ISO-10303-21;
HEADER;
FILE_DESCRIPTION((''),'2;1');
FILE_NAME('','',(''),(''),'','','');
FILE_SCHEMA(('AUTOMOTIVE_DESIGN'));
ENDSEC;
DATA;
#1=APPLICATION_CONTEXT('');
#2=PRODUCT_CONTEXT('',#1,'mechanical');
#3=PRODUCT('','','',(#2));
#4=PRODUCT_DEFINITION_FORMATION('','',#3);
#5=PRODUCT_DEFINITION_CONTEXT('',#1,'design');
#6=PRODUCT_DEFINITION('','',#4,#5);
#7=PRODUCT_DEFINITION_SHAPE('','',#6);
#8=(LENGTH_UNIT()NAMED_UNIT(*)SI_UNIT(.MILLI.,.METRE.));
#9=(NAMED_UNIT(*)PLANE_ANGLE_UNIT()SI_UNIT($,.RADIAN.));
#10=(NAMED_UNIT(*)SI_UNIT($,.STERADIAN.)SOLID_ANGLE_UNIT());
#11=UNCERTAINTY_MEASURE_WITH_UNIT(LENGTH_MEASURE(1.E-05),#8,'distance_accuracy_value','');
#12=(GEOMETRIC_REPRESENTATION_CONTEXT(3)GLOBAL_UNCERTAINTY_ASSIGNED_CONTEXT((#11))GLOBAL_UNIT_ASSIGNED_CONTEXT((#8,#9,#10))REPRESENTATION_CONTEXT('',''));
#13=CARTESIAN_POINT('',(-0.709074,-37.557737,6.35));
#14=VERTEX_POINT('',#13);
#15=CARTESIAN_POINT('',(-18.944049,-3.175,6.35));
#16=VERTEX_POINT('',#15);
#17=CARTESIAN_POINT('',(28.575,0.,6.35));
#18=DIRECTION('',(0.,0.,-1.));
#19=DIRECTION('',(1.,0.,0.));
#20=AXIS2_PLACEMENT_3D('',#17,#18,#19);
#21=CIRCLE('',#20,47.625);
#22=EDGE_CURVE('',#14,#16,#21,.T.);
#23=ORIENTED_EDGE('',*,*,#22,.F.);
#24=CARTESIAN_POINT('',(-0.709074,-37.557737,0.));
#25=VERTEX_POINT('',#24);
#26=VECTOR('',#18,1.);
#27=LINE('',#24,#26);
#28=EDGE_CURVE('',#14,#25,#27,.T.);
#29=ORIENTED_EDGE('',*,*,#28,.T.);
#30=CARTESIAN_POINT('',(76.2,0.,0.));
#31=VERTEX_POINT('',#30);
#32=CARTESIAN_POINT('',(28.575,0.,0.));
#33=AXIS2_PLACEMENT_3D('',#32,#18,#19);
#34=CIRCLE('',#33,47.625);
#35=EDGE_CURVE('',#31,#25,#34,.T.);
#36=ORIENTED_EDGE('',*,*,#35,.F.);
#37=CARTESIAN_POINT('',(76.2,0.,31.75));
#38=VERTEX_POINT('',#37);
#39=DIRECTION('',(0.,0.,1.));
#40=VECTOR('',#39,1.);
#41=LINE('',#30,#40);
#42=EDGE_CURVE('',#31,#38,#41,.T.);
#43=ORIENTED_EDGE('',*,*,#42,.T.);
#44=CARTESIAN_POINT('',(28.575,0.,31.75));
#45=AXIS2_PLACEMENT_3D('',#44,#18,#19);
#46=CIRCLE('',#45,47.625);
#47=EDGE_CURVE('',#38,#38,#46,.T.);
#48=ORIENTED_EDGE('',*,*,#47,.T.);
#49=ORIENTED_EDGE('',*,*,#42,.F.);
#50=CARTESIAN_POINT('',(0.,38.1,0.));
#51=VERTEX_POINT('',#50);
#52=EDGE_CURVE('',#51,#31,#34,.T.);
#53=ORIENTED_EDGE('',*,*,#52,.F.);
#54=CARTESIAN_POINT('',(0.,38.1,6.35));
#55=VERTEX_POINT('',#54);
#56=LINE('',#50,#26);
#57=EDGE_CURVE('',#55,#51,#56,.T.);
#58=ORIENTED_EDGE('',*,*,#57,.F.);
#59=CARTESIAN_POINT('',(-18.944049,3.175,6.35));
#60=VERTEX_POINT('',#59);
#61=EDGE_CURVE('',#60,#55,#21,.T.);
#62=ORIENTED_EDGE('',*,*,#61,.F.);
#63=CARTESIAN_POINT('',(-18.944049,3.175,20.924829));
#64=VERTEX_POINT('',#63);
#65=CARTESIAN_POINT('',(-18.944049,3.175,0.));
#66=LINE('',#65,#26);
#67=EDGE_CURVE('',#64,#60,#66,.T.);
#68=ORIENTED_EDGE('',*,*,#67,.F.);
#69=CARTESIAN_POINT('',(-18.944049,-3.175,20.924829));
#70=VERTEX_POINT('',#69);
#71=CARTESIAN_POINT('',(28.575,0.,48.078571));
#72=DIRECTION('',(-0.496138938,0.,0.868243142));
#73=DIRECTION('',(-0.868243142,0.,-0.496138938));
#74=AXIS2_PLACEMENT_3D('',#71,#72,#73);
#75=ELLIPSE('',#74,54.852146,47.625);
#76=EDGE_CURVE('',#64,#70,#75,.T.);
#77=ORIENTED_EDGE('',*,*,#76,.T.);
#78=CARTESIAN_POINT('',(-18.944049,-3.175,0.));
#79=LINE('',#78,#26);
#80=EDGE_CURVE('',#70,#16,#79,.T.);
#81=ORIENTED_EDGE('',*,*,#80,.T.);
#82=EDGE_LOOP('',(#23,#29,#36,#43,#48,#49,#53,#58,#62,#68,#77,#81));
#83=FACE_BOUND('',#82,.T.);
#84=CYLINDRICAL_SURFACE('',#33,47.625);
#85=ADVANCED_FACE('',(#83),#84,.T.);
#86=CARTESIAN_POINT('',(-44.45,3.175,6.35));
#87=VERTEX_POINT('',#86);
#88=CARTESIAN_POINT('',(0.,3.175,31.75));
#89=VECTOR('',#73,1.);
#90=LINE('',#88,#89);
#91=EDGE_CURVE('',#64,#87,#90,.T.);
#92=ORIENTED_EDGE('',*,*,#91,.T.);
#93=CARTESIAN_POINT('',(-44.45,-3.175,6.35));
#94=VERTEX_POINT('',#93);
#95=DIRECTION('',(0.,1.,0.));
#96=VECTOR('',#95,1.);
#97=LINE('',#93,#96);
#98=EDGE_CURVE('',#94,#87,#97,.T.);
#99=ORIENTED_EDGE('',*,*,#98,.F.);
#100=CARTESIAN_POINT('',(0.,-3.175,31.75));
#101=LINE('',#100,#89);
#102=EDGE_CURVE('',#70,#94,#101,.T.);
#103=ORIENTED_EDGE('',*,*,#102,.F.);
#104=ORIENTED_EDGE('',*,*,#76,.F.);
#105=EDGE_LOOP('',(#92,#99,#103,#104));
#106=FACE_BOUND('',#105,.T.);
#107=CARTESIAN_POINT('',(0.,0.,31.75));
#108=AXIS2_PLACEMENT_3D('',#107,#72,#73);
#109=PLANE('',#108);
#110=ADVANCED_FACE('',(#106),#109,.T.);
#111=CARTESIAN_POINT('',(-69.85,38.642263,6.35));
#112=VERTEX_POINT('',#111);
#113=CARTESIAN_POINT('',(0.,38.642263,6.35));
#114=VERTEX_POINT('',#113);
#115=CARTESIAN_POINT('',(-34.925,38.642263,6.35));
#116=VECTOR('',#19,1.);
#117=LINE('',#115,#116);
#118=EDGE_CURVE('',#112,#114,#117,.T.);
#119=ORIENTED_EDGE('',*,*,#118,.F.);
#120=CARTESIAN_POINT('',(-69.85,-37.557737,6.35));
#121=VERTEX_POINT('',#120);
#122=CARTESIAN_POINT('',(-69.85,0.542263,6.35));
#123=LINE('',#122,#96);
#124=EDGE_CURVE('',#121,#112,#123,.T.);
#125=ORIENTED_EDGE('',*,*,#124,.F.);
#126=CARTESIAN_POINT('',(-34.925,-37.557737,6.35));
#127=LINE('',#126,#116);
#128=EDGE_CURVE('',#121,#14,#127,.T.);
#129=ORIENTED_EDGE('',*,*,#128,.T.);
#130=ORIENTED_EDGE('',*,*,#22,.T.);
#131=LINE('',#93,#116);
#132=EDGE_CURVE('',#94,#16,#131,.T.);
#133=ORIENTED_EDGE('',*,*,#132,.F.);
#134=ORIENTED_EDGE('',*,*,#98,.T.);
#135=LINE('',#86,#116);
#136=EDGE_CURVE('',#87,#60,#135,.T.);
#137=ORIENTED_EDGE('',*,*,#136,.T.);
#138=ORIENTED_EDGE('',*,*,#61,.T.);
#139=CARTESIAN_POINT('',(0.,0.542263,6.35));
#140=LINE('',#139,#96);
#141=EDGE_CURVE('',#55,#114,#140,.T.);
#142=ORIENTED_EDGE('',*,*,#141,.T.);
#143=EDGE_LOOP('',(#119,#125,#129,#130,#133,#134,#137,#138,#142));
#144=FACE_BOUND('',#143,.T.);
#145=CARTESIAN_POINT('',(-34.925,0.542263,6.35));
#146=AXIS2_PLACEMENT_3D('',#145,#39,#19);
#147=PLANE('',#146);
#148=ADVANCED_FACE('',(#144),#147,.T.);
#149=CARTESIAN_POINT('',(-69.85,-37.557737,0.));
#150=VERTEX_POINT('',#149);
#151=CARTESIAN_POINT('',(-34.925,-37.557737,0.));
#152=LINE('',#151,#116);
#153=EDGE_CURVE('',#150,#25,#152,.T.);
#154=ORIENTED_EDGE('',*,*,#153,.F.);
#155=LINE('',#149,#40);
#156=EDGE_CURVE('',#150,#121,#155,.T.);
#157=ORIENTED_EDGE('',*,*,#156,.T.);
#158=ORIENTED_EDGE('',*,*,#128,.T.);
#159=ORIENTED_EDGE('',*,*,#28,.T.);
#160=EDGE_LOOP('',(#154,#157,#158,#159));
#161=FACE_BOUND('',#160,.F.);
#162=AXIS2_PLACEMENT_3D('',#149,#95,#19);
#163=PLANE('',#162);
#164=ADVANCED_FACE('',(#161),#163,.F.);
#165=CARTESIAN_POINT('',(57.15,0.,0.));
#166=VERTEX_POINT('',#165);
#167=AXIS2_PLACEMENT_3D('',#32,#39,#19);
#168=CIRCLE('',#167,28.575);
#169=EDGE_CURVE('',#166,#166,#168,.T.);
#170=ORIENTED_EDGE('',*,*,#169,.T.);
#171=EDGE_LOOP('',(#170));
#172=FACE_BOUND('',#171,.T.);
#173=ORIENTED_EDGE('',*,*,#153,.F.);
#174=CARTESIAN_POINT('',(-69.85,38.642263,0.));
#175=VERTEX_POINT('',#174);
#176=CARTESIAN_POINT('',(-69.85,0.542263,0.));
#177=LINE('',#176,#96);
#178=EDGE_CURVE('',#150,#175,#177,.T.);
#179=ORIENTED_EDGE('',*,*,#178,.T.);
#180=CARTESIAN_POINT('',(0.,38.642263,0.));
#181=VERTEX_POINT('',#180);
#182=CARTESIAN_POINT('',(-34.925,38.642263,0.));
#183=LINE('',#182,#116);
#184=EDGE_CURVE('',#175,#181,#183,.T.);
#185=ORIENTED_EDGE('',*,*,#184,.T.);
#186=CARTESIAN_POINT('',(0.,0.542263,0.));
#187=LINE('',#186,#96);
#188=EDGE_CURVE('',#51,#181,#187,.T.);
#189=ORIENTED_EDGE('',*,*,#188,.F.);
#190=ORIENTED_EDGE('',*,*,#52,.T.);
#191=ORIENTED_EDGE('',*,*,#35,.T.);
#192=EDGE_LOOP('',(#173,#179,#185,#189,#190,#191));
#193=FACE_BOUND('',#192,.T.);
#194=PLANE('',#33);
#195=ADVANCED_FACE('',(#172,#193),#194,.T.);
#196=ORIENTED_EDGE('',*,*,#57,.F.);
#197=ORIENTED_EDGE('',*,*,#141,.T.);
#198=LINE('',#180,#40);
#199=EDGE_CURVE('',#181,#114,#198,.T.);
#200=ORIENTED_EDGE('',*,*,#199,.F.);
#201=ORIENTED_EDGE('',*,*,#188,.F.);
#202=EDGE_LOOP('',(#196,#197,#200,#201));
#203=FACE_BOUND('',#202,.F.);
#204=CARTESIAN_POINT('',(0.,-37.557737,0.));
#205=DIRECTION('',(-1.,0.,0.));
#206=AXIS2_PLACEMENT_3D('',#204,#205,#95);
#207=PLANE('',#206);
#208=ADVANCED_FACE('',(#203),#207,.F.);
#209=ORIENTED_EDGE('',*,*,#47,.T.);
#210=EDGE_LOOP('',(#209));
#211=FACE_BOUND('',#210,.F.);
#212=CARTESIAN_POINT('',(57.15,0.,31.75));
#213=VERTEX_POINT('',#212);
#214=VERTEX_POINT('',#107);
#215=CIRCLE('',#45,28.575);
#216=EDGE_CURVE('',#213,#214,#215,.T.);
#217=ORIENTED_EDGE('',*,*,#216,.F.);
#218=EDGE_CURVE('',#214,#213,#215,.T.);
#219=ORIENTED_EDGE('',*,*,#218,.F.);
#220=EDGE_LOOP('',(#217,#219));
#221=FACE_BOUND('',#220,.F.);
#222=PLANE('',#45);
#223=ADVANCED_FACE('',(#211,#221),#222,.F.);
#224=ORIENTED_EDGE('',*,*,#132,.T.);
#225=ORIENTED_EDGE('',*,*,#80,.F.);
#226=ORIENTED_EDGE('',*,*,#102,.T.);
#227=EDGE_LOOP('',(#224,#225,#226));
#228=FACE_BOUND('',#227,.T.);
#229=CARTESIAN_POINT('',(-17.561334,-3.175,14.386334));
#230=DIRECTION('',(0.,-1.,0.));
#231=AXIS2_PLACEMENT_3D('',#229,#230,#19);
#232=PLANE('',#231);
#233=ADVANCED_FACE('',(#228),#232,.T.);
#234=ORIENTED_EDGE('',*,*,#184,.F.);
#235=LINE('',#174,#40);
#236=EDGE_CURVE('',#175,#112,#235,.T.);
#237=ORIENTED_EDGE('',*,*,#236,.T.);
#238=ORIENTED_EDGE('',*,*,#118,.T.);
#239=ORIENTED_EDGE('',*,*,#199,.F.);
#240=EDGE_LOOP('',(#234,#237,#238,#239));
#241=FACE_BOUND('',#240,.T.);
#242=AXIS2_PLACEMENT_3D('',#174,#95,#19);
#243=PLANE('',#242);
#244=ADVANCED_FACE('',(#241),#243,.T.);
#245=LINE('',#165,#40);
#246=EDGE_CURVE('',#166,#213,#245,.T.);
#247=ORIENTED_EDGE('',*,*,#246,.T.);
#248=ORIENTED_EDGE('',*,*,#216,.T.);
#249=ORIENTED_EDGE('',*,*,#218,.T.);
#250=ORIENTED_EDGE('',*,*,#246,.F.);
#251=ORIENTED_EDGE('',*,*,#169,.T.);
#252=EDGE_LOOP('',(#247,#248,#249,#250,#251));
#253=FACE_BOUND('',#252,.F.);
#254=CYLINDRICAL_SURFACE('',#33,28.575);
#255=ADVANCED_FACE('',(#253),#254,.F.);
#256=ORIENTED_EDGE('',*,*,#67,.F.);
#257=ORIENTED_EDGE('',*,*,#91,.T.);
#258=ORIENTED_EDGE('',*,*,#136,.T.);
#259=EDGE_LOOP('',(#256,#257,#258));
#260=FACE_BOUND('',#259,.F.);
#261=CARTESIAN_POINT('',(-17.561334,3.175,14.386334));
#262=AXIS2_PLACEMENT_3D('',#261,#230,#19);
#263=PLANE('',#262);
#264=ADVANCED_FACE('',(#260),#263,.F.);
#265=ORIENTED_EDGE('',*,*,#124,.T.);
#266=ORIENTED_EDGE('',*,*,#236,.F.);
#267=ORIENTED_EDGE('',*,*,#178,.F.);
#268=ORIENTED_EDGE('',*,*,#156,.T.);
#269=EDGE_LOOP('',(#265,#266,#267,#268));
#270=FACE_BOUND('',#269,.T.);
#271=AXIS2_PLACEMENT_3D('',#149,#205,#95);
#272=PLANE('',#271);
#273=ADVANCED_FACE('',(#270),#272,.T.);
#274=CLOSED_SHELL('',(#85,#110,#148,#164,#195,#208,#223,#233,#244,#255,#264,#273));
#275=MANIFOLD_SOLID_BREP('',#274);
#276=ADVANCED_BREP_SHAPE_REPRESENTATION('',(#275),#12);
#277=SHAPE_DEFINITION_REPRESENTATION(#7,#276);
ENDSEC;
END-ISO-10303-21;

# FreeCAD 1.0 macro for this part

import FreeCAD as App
import Part
import Sketcher
Q = App.Units.Quantity

doc = App.newDocument("Part")
body = doc.addObject("PartDesign::Body", "Body")

# Sketch on XY plane
sketch1 = body.newObject("Sketcher::SketchObject", "Sketch")
sketch1.AttachmentSupport = (doc.getObject("XY_Plane"), [""])
sketch1.MapMode = "FlatFace"
sketch1.addGeometry([
    Part.LineSegment(App.Vector(-70, 39, 0), App.Vector(-70, -38, 0)),
    Part.LineSegment(App.Vector(-70, -38, 0), App.Vector(0, -38, 0)),
    Part.LineSegment(App.Vector(0, -38, 0), App.Vector(0, 39, 0)),
    Part.LineSegment(App.Vector(0, 39, 0), App.Vector(-70, 39, 0)),
], False)
sketch1.addConstraint([
    Sketcher.Constraint("Coincident", 0, 2, 1, 1),
    Sketcher.Constraint("Coincident", 1, 2, 2, 1),
    Sketcher.Constraint("Coincident", 2, 2, 3, 1),
    Sketcher.Constraint("Coincident", 3, 2, 0, 1),
    Sketcher.Constraint("Vertical", 0),
    Sketcher.Constraint("Horizontal", 1),
    Sketcher.Constraint("Vertical", 2),
    Sketcher.Constraint("Horizontal", 3),
    Sketcher.Constraint("PointOnObject", 1, 2, -2),
    Sketcher.Constraint("DistanceY", 0, 2, 0, 1, Q("3 in")),
    Sketcher.Constraint("DistanceX", 1, 1, 1, 2, Q("2.75 in")),
    Sketcher.Constraint("DistanceY", 0, 2, -1, 1, Q("37.557737 mm")),
])
pad1 = body.newObject("PartDesign::Pad", "Pad")
pad1.Profile = sketch1
pad1.Length = Q("0.25 in")

# Sketch on XZ plane
sketch2 = body.newObject("Sketcher::SketchObject", "Sketch001")
sketch2.AttachmentSupport = (doc.getObject("XZ_Plane"), [""])
sketch2.MapMode = "FlatFace"
sketch2.addGeometry([
    Part.LineSegment(App.Vector(-44, 6, 0), App.Vector(0, 6, 0)),
    Part.LineSegment(App.Vector(0, 6, 0), App.Vector(0, 32, 0)),
    Part.LineSegment(App.Vector(0, 32, 0), App.Vector(-44, 6, 0)),
], False)
sketch2.addConstraint([
    Sketcher.Constraint("Coincident", 0, 2, 1, 1),
    Sketcher.Constraint("Coincident", 1, 2, 2, 1),
    Sketcher.Constraint("Coincident", 2, 2, 0, 1),
    Sketcher.Constraint("Horizontal", 0),
    Sketcher.Constraint("Vertical", 1),
    Sketcher.Constraint("PointOnObject", 0, 2, -2),
    Sketcher.Constraint("DistanceY", 1, 1, 1, 2, Q("1 in")),
    Sketcher.Constraint("DistanceX", 0, 1, 0, 2, Q("1.75 in")),
    Sketcher.Constraint("DistanceY", -1, 1, 0, 2, Q("0.25 in")),
])
pad2 = body.newObject("PartDesign::Pad", "Pad001")
pad2.Profile = sketch2
pad2.Length = Q("0.25 in")
pad2.Midplane = True

# Sketch on XY plane
sketch3 = body.newObject("Sketcher::SketchObject", "Sketch002")
sketch3.AttachmentSupport = (doc.getObject("XY_Plane"), [""])
sketch3.MapMode = "FlatFace"
sketch3.addGeometry([
    Part.Circle(App.Vector(29, 0, 0), App.Vector(0, 0, 1), 48),
    Part.Circle(App.Vector(29, 0, 0), App.Vector(0, 0, 1), 29),
], False)
sketch3.addConstraint([
    Sketcher.Constraint("Coincident", 1, 3, 0, 3),
    Sketcher.Constraint("PointOnObject", 0, 3, -1),
    Sketcher.Constraint("Diameter", 0, Q("3.75 in")),
    Sketcher.Constraint("Diameter", 1, Q("2.25 in")),
    Sketcher.Constraint("DistanceX", -1, 1, 0, 3, Q("1.125 in")),
])
pad3 = body.newObject("PartDesign::Pad", "Pad002")
pad3.Profile = sketch3
pad3.Length = Q("1.25 in")

doc.recompute()
